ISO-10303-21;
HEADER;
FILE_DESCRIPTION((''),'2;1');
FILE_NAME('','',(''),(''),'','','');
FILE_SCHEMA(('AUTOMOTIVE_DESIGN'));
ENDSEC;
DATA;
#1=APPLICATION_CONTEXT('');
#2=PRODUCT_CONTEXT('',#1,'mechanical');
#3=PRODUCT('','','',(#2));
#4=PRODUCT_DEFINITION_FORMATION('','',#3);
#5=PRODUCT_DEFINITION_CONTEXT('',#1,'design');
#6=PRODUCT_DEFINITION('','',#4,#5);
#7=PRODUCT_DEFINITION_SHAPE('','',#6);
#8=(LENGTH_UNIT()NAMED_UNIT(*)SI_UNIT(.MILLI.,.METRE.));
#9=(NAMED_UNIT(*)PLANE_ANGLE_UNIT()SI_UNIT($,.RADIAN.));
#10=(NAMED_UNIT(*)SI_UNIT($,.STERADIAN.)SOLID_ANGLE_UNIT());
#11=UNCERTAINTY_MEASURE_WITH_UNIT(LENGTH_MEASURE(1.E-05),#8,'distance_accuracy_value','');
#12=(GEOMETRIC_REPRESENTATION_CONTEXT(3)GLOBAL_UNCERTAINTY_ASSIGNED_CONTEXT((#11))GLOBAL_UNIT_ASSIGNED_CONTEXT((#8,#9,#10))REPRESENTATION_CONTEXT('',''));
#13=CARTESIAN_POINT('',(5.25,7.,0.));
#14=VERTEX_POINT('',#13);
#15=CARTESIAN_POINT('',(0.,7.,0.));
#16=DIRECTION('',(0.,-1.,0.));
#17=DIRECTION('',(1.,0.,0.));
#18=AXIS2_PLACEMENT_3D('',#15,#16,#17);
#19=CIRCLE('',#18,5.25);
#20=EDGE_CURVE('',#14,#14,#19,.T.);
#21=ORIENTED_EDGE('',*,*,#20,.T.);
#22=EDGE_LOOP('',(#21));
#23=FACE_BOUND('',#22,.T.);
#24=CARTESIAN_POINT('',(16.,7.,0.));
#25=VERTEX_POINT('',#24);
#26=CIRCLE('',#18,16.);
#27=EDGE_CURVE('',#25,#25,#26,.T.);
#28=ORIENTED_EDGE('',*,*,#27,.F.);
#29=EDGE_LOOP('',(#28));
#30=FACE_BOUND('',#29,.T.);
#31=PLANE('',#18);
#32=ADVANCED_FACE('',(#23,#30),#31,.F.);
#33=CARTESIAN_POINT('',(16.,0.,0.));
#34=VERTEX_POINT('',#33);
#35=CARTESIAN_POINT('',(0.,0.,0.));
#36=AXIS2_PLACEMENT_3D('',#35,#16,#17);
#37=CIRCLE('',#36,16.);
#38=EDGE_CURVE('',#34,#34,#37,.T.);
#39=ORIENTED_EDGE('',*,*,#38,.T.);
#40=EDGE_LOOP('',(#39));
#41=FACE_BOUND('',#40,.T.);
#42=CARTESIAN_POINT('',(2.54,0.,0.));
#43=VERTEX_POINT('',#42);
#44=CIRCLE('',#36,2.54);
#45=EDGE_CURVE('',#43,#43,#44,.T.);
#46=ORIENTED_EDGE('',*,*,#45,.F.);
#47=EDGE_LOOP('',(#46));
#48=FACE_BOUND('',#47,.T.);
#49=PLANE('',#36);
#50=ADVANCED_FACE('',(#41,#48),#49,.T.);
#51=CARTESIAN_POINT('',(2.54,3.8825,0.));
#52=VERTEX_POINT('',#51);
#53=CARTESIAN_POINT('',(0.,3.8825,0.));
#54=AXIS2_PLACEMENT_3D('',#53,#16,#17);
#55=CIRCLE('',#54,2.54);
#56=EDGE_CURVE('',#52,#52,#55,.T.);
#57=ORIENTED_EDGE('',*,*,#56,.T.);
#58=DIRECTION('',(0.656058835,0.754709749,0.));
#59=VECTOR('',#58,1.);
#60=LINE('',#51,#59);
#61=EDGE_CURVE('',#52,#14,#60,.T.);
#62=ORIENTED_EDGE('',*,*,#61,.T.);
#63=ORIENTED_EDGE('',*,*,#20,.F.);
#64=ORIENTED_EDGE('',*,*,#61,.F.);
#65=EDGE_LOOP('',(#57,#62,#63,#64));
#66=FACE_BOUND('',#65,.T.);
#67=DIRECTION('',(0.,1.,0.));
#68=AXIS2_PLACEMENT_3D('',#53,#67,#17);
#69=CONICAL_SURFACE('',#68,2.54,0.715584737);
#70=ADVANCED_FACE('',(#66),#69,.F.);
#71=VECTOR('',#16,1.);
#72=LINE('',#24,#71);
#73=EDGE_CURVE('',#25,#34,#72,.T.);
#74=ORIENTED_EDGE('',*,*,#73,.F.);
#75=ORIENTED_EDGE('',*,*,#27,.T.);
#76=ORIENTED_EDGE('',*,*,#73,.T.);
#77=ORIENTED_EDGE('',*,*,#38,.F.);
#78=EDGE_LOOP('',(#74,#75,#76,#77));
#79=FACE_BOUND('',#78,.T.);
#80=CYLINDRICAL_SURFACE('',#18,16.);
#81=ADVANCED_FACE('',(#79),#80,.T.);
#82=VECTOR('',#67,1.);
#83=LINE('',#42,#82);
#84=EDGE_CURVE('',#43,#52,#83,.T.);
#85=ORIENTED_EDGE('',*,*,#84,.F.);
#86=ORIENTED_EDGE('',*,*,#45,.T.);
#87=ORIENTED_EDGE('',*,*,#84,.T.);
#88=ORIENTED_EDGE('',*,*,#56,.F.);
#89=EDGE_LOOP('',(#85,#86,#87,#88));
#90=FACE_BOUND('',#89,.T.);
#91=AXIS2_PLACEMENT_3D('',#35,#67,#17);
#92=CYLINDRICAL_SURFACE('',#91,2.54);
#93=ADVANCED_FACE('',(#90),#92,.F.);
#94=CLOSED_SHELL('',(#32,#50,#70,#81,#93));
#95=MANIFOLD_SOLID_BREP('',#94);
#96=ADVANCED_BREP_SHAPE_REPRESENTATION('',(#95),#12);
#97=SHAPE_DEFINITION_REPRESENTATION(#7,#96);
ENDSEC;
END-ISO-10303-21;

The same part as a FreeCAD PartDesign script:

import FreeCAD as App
import Part
import Sketcher

V = App.Vector
Q = App.Units.Quantity

doc = App.newDocument("Part")
body = doc.addObject("PartDesign::Body", "Body")

# Sketch on XY plane
sketch1 = doc.addObject("Sketcher::SketchObject", "Sketch")
body.addObject(sketch1)
sketch1.AttachmentSupport = (doc.XY_Plane, [""])
sketch1.MapMode = "FlatFace"
sketch1.addGeometry(Part.LineSegment(V(2.54, 3.8825, 0), V(2.54, 0, 0)), False)
sketch1.addGeometry(Part.LineSegment(V(2.54, 0, 0), V(16, 0, 0)), False)
sketch1.addGeometry(Part.LineSegment(V(16, 0, 0), V(16, 7, 0)), False)
sketch1.addGeometry(Part.LineSegment(V(16, 7, 0), V(5.25, 7, 0)), False)
sketch1.addGeometry(Part.LineSegment(V(5.25, 7, 0), V(2.54, 3.8825, 0)), False)
sketch1.addConstraint(Sketcher.Constraint("Coincident", 0, 2, 1, 1))
sketch1.addConstraint(Sketcher.Constraint("Coincident", 1, 2, 2, 1))
sketch1.addConstraint(Sketcher.Constraint("Coincident", 2, 2, 3, 1))
sketch1.addConstraint(Sketcher.Constraint("Coincident", 3, 2, 4, 1))
sketch1.addConstraint(Sketcher.Constraint("Coincident", 4, 2, 0, 1))
sketch1.addConstraint(Sketcher.Constraint("Vertical", 0))
sketch1.addConstraint(Sketcher.Constraint("Horizontal", 1))
sketch1.addConstraint(Sketcher.Constraint("Vertical", 2))
sketch1.addConstraint(Sketcher.Constraint("Horizontal", 3))
sketch1.addConstraint(Sketcher.Constraint("PointOnObject", 0, 2, -1))
sketch1.addConstraint(Sketcher.Constraint("DistanceY", 2, 1, 2, 2, 7.0))
sketch1.addConstraint(Sketcher.Constraint("Angle", 4, Q("-131 deg")))
sketch1.addConstraint(Sketcher.Constraint("DistanceX", -1, 1, 1, 2, 16.0))
sketch1.addConstraint(Sketcher.Constraint("DistanceX", 1, 1, 1, 2, 13.46))
sketch1.addConstraint(Sketcher.Constraint("DistanceX", 3, 2, 3, 1, 10.75))
revolution = doc.addObject("PartDesign::Revolution", "Revolution")
body.addObject(revolution)
revolution.Profile = sketch1
revolution.ReferenceAxis = (sketch1, ["V_Axis"])
revolution.Angle = 360

doc.recompute()
